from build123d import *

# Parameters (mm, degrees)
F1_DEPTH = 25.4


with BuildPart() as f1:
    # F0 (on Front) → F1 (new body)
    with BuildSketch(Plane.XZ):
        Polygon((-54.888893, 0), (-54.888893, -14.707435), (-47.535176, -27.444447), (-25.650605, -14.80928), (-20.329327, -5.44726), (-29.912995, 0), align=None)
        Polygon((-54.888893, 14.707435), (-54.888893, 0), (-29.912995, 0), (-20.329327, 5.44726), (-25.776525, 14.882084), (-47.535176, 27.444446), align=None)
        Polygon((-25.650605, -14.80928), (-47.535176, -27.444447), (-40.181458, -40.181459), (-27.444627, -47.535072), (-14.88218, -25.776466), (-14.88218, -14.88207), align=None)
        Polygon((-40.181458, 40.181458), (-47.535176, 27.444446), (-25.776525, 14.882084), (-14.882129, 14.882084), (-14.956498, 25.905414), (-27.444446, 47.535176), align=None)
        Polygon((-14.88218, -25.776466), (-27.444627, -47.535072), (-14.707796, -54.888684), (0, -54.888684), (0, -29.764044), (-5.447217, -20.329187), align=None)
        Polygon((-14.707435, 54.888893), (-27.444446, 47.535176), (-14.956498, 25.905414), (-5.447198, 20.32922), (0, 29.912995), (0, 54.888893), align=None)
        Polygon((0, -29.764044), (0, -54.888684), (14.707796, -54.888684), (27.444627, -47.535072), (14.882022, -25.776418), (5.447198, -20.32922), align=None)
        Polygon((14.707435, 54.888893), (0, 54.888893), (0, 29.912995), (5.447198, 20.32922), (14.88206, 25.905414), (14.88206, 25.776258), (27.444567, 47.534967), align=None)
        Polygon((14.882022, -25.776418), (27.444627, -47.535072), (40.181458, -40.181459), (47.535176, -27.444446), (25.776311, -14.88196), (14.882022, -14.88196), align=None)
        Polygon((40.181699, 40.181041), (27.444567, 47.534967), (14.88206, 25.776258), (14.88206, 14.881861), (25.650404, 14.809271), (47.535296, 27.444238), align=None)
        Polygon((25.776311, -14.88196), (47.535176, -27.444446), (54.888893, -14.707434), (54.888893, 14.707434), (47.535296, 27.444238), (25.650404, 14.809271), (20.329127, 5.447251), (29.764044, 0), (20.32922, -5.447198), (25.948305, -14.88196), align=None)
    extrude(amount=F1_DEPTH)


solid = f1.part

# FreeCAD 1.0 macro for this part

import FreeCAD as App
import Part
import Sketcher

V = App.Vector
Q = App.Units.Quantity

doc = App.newDocument("Part")
body = doc.addObject("PartDesign::Body", "Body")

# Sketch on XZ plane
sketch1 = doc.addObject("Sketcher::SketchObject", "Sketch")
body.addObject(sketch1)
sketch1.AttachmentSupport = (doc.XZ_Plane, [""])
sketch1.MapMode = "FlatFace"
sketch1.addGeometry([
    Part.LineSegment(V(-54.888893, -14.707435, 0), V(-47.535176, -27.444447, 0)),  # 0
    Part.LineSegment(V(-47.535176, -27.444447, 0), V(-40.181458, -40.181459, 0)),  # 1
    Part.LineSegment(V(-40.181458, -40.181459, 0), V(-27.444627, -47.535072, 0)),  # 2
    Part.LineSegment(V(-27.444627, -47.535072, 0), V(-14.707796, -54.888684, 0)),  # 3
    Part.LineSegment(V(-14.707796, -54.888684, 0), V(14.707796, -54.888684, 0)),  # 4
    Part.LineSegment(V(14.707796, -54.888684, 0), V(27.444627, -47.535072, 0)),  # 5
    Part.LineSegment(V(27.444627, -47.535072, 0), V(40.181458, -40.181459, 0)),  # 6
    Part.LineSegment(V(40.181458, -40.181459, 0), V(47.535176, -27.444446, 0)),  # 7
    Part.LineSegment(V(47.535176, -27.444446, 0), V(54.888893, -14.707434, 0)),  # 8
    Part.LineSegment(V(54.888893, -14.707434, 0), V(54.888893, 14.707434, 0)),  # 9
    Part.LineSegment(V(54.888893, 14.707434, 0), V(47.535296, 27.444238, 0)),  # 10
    Part.LineSegment(V(47.535296, 27.444238, 0), V(40.181699, 40.181041, 0)),  # 11
    Part.LineSegment(V(40.181699, 40.181041, 0), V(14.707435, 54.888893, 0)),  # 12
    Part.LineSegment(V(14.707435, 54.888893, 0), V(-14.707435, 54.888893, 0)),  # 13
    Part.LineSegment(V(-14.707435, 54.888893, 0), V(-27.444446, 47.535176, 0)),  # 14
    Part.LineSegment(V(-27.444446, 47.535176, 0), V(-40.181458, 40.181458, 0)),  # 15
    Part.LineSegment(V(-40.181458, 40.181458, 0), V(-47.535176, 27.444446, 0)),  # 16
    Part.LineSegment(V(-47.535176, 27.444446, 0), V(-54.888893, 14.707435, 0)),  # 17
    Part.LineSegment(V(-54.888893, 14.707435, 0), V(-54.888893, -14.707435, 0)),  # 18
    Part.LineSegment(V(14.882022, -14.88196, 0), V(14.882022, -25.776418, 0)),  # 19
    Part.LineSegment(V(14.882022, -25.776418, 0), V(5.447198, -20.32922, 0)),  # 20
    Part.LineSegment(V(5.447198, -20.32922, 0), V(0, -29.764044, 0)),  # 21
    Part.LineSegment(V(0, -29.764044, 0), V(-5.447217, -20.329187, 0)),  # 22
    Part.LineSegment(V(-5.447217, -20.329187, 0), V(-14.88218, -25.776466, 0)),  # 23
    Part.LineSegment(V(-14.88218, -25.776466, 0), V(-14.88218, -14.88207, 0)),  # 24
    Part.LineSegment(V(-14.88218, -14.88207, 0), V(-25.650605, -14.80928, 0)),  # 25
    Part.LineSegment(V(-25.650605, -14.80928, 0), V(-20.329327, -5.44726, 0)),  # 26
    Part.LineSegment(V(-20.329327, -5.44726, 0), V(-29.912995, 0, 0)),  # 27
    Part.LineSegment(V(-29.912995, 0, 0), V(-20.329327, 5.44726, 0)),  # 28
    Part.LineSegment(V(-20.329327, 5.44726, 0), V(-25.776525, 14.882084, 0)),  # 29
    Part.LineSegment(V(-25.776525, 14.882084, 0), V(-14.882129, 14.882084, 0)),  # 30
    Part.LineSegment(V(-14.882129, 14.882084, 0), V(-14.956498, 25.905414, 0)),  # 31
    Part.LineSegment(V(-14.956498, 25.905414, 0), V(-5.447198, 20.32922, 0)),  # 32
    Part.LineSegment(V(-5.447198, 20.32922, 0), V(0, 29.912995, 0)),  # 33
    Part.LineSegment(V(0, 29.912995, 0), V(5.447198, 20.32922, 0)),  # 34
    Part.LineSegment(V(5.447198, 20.32922, 0), V(14.88206, 25.905414, 0)),  # 35
    Part.LineSegment(V(14.88206, 25.905414, 0), V(14.88206, 14.881861, 0)),  # 36
    Part.LineSegment(V(14.88206, 14.881861, 0), V(25.650404, 14.809271, 0)),  # 37
    Part.LineSegment(V(25.650404, 14.809271, 0), V(20.329127, 5.447251, 0)),  # 38
    Part.LineSegment(V(20.329127, 5.447251, 0), V(29.764044, 0, 0)),  # 39
    Part.LineSegment(V(29.764044, 0, 0), V(20.32922, -5.447198, 0)),  # 40
    Part.LineSegment(V(20.32922, -5.447198, 0), V(25.948305, -14.88196, 0)),  # 41
    Part.LineSegment(V(25.948305, -14.88196, 0), V(14.882022, -14.88196, 0)),  # 42
], False)
sketch1.addConstraint([
    Sketcher.Constraint("Coincident", 0, 2, 1, 1),
    Sketcher.Constraint("Coincident", 1, 2, 2, 1),
    Sketcher.Constraint("Coincident", 2, 2, 3, 1),
    Sketcher.Constraint("Coincident", 3, 2, 4, 1),
    Sketcher.Constraint("Coincident", 4, 2, 5, 1),
    Sketcher.Constraint("Coincident", 5, 2, 6, 1),
    Sketcher.Constraint("Coincident", 6, 2, 7, 1),
    Sketcher.Constraint("Coincident", 7, 2, 8, 1),
    Sketcher.Constraint("Coincident", 8, 2, 9, 1),
    Sketcher.Constraint("Coincident", 9, 2, 10, 1),
    Sketcher.Constraint("Coincident", 10, 2, 11, 1),
    Sketcher.Constraint("Coincident", 11, 2, 12, 1),
    Sketcher.Constraint("Coincident", 12, 2, 13, 1),
    Sketcher.Constraint("Coincident", 13, 2, 14, 1),
    Sketcher.Constraint("Coincident", 14, 2, 15, 1),
    Sketcher.Constraint("Coincident", 15, 2, 16, 1),
    Sketcher.Constraint("Coincident", 16, 2, 17, 1),
    Sketcher.Constraint("Coincident", 17, 2, 18, 1),
    Sketcher.Constraint("Coincident", 18, 2, 0, 1),
    Sketcher.Constraint("Coincident", 19, 2, 20, 1),
    Sketcher.Constraint("Coincident", 20, 2, 21, 1),
    Sketcher.Constraint("Coincident", 21, 2, 22, 1),
    Sketcher.Constraint("Coincident", 22, 2, 23, 1),
    Sketcher.Constraint("Coincident", 23, 2, 24, 1),
    Sketcher.Constraint("Coincident", 24, 2, 25, 1),
    Sketcher.Constraint("Coincident", 25, 2, 26, 1),
    Sketcher.Constraint("Coincident", 26, 2, 27, 1),
    Sketcher.Constraint("Coincident", 27, 2, 28, 1),
    Sketcher.Constraint("Coincident", 28, 2, 29, 1),
    Sketcher.Constraint("Coincident", 29, 2, 30, 1),
    Sketcher.Constraint("Coincident", 30, 2, 31, 1),
    Sketcher.Constraint("Coincident", 31, 2, 32, 1),
    Sketcher.Constraint("Coincident", 32, 2, 33, 1),
    Sketcher.Constraint("Coincident", 33, 2, 34, 1),
    Sketcher.Constraint("Coincident", 34, 2, 35, 1),
    Sketcher.Constraint("Coincident", 35, 2, 36, 1),
    Sketcher.Constraint("Coincident", 36, 2, 37, 1),
    Sketcher.Constraint("Coincident", 37, 2, 38, 1),
    Sketcher.Constraint("Coincident", 38, 2, 39, 1),
    Sketcher.Constraint("Coincident", 39, 2, 40, 1),
    Sketcher.Constraint("Coincident", 40, 2, 41, 1),
    Sketcher.Constraint("Coincident", 41, 2, 42, 1),
    Sketcher.Constraint("Coincident", 42, 2, 19, 1),
    Sketcher.Constraint("Horizontal", 4),
    Sketcher.Constraint("Vertical", 9),
    Sketcher.Constraint("Horizontal", 13),
    Sketcher.Constraint("Vertical", 18),
    Sketcher.Constraint("Vertical", 19),
    Sketcher.Constraint("Vertical", 24),
    Sketcher.Constraint("Horizontal", 30),
    Sketcher.Constraint("Vertical", 36),
    Sketcher.Constraint("Horizontal", 42),
    Sketcher.Constraint("PointOnObject", 21, 2, -2),
    Sketcher.Constraint("PointOnObject", 27, 2, -1),
    Sketcher.Constraint("PointOnObject", 33, 2, -2),
    Sketcher.Constraint("PointOnObject", 39, 2, -1),
    Sketcher.Constraint("DistanceY", -1, 1, 36, 2, Q("0.5859 in")),
    Sketcher.Constraint("DistanceX", 1, 2, 3, 2, Q("1.0029001 in")),
    Sketcher.Constraint("DistanceX", 4, 2, 6, 2, Q("1.0029001 in")),
    Sketcher.Constraint("DistanceX", 4, 1, 4, 2, Q("29.415592 mm")),
    Sketcher.Constraint("DistanceX", 13, 2, 13, 1, Q("29.41487 mm")),
    Sketcher.Constraint("DistanceY", 18, 2, 18, 1, Q("29.41487 mm")),
    Sketcher.Constraint("DistanceX", -1, 1, 11, 2, Q("40.181699 mm")),
    Sketcher.Constraint("DistanceX", -1, 1, 20, 2, Q("5.447198 mm")),
    Sketcher.Constraint("DistanceX", 32, 2, -1, 1, Q("5.447198 mm")),
    Sketcher.Constraint("DistanceX", -1, 1, 34, 2, Q("5.447198 mm")),
    Sketcher.Constraint("DistanceY", 40, 2, -1, 1, Q("5.447198 mm")),
    Sketcher.Constraint("DistanceY", 6, 2, 11, 2, Q("80.3625 mm")),
    Sketcher.Constraint("DistanceY", 19, 2, 20, 2, Q("5.447198 mm")),
    Sketcher.Constraint("DistanceX", 24, 2, 19, 2, Q("29.764202 mm")),
    Sketcher.Constraint("DistanceX", 17, 2, 27, 2, Q("24.975898 mm")),
    Sketcher.Constraint("DistanceX", 29, 2, 28, 2, Q("5.447198 mm")),
    Sketcher.Constraint("DistanceX", 29, 2, 26, 2, Q("5.447198 mm")),
    Sketcher.Constraint("DistanceX", 31, 2, 32, 2, Q("9.5093 mm")),
    Sketcher.Constraint("DistanceY", 33, 2, 12, 2, Q("24.975898 mm")),
    Sketcher.Constraint("DistanceX", 19, 2, 40, 2, Q("5.447198 mm")),
    Sketcher.Constraint("Distance", 25, Q("10.768671 mm")),
    Sketcher.Constraint("Distance", 26, Q("10.768631 mm")),
    Sketcher.Constraint("Distance", 27, Q("11.023581 mm")),
    Sketcher.Constraint("Distance", 28, Q("11.023581 mm")),
    Sketcher.Constraint("Distance", 31, Q("11.023581 mm")),
    Sketcher.Constraint("Distance", 37, Q("10.768589 mm")),
    Sketcher.Constraint("Distance", 38, Q("10.768631 mm")),
    Sketcher.Constraint("DistanceX", 30, 1, 30, 2, Q("10.894396 mm")),
    Sketcher.Constraint("DistanceX", 42, 2, 42, 1, Q("11.066283 mm")),
    Sketcher.Constraint("DistanceY", 9, 1, 9, 2, Q("29.414868 mm")),
    Sketcher.Constraint("DistanceY", 19, 2, 19, 1, Q("10.894458 mm")),
    Sketcher.Constraint("DistanceY", 24, 1, 24, 2, Q("10.894396 mm")),
    Sketcher.Constraint("DistanceY", 36, 2, 36, 1, Q("11.023553 mm")),
    Sketcher.Constraint("DistanceY", 1, 2, -1, 1, Q("40.181459 mm")),
    Sketcher.Constraint("DistanceY", 6, 2, -1, 1, Q("40.181459 mm")),
    Sketcher.Constraint("DistanceX", -1, 1, 19, 2, Q("14.882022 mm")),
    Sketcher.Constraint("DistanceY", 20, 2, -1, 1, Q("20.32922 mm")),
    Sketcher.Constraint("DistanceY", 24, 2, -1, 1, Q("14.88207 mm")),
    Sketcher.Constraint("DistanceY", 25, 2, -1, 1, Q("14.80928 mm")),
    Sketcher.Constraint("DistanceY", 26, 2, -1, 1, Q("5.44726 mm")),
    Sketcher.Constraint("DistanceY", -1, 1, 32, 2, Q("20.32922 mm")),
    Sketcher.Constraint("DistanceY", -1, 1, 34, 2, Q("20.32922 mm")),
    Sketcher.Constraint("DistanceX", -1, 1, 35, 2, Q("14.88206 mm")),
    Sketcher.Constraint("DistanceY", -1, 1, 37, 2, Q("14.809271 mm")),
    Sketcher.Constraint("DistanceY", -1, 1, 38, 2, Q("5.447251 mm")),
    Sketcher.Constraint("DistanceX", 0, 2, 1, 2, Q("7.353718 mm")),
    Sketcher.Constraint("DistanceY", 1, 2, 0, 2, Q("12.737012 mm")),
    Sketcher.Constraint("DistanceX", 1, 2, 2, 2, Q("12.736831 mm")),
    Sketcher.Constraint("DistanceY", 3, 2, 2, 2, Q("7.353612 mm")),
    Sketcher.Constraint("DistanceX", 4, 2, 5, 2, Q("12.736831 mm")),
    Sketcher.Constraint("DistanceY", 4, 2, 5, 2, Q("7.353612 mm")),
    Sketcher.Constraint("DistanceX", 6, 2, 7, 2, Q("7.353718 mm")),
    Sketcher.Constraint("DistanceY", 4, 2, 8, 2, Q("40.18125 mm")),
    Sketcher.Constraint("DistanceX", 3, 2, 8, 2, Q("69.596689 mm")),
    Sketcher.Constraint("DistanceY", 7, 2, 9, 2, Q("42.15188 mm")),
    Sketcher.Constraint("DistanceY", 8, 2, 10, 2, Q("42.151672 mm")),
    Sketcher.Constraint("DistanceX", 7, 2, 10, 2, Q("0.00012 mm")),
    Sketcher.Constraint("DistanceX", 6, 2, 11, 2, Q("0.000241 mm")),
    Sketcher.Constraint("DistanceX", 12, 2, 10, 2, Q("32.827861 mm")),
    Sketcher.Constraint("DistanceY", 9, 2, 12, 2, Q("40.181459 mm")),
    Sketcher.Constraint("DistanceY", 0, 2, 13, 2, Q("82.33334 mm")),
    Sketcher.Constraint("DistanceX", 14, 2, 13, 2, Q("12.737011 mm")),
    Sketcher.Constraint("DistanceY", 10, 2, 14, 2, Q("20.090938 mm")),
    Sketcher.Constraint("DistanceY", 15, 2, 14, 2, Q("7.353718 mm")),
    Sketcher.Constraint("DistanceX", 0, 2, 15, 2, Q("7.353718 mm")),
    Sketcher.Constraint("DistanceX", 16, 2, 15, 2, Q("7.353718 mm")),
    Sketcher.Constraint("DistanceY", 16, 2, 14, 2, Q("20.09073 mm")),
    Sketcher.Constraint("DistanceY", 17, 2, 16, 2, Q("12.737011 mm")),
    Sketcher.Constraint("DistanceY", 3, 2, 21, 2, Q("25.12464 mm")),
    Sketcher.Constraint("DistanceX", 22, 2, 19, 2, Q("20.329239 mm")),
    Sketcher.Constraint("DistanceY", 19, 2, 22, 2, Q("5.447231 mm")),
    Sketcher.Constraint("DistanceY", 29, 2, 16, 2, Q("12.562362 mm")),
    Sketcher.Constraint("DistanceX", 37, 2, 39, 2, Q("4.11364 mm")),
])
pad1 = doc.addObject("PartDesign::Pad", "Pad")
body.addObject(pad1)
pad1.Profile = sketch1
pad1.Length = Q("1 in")

doc.recompute()
